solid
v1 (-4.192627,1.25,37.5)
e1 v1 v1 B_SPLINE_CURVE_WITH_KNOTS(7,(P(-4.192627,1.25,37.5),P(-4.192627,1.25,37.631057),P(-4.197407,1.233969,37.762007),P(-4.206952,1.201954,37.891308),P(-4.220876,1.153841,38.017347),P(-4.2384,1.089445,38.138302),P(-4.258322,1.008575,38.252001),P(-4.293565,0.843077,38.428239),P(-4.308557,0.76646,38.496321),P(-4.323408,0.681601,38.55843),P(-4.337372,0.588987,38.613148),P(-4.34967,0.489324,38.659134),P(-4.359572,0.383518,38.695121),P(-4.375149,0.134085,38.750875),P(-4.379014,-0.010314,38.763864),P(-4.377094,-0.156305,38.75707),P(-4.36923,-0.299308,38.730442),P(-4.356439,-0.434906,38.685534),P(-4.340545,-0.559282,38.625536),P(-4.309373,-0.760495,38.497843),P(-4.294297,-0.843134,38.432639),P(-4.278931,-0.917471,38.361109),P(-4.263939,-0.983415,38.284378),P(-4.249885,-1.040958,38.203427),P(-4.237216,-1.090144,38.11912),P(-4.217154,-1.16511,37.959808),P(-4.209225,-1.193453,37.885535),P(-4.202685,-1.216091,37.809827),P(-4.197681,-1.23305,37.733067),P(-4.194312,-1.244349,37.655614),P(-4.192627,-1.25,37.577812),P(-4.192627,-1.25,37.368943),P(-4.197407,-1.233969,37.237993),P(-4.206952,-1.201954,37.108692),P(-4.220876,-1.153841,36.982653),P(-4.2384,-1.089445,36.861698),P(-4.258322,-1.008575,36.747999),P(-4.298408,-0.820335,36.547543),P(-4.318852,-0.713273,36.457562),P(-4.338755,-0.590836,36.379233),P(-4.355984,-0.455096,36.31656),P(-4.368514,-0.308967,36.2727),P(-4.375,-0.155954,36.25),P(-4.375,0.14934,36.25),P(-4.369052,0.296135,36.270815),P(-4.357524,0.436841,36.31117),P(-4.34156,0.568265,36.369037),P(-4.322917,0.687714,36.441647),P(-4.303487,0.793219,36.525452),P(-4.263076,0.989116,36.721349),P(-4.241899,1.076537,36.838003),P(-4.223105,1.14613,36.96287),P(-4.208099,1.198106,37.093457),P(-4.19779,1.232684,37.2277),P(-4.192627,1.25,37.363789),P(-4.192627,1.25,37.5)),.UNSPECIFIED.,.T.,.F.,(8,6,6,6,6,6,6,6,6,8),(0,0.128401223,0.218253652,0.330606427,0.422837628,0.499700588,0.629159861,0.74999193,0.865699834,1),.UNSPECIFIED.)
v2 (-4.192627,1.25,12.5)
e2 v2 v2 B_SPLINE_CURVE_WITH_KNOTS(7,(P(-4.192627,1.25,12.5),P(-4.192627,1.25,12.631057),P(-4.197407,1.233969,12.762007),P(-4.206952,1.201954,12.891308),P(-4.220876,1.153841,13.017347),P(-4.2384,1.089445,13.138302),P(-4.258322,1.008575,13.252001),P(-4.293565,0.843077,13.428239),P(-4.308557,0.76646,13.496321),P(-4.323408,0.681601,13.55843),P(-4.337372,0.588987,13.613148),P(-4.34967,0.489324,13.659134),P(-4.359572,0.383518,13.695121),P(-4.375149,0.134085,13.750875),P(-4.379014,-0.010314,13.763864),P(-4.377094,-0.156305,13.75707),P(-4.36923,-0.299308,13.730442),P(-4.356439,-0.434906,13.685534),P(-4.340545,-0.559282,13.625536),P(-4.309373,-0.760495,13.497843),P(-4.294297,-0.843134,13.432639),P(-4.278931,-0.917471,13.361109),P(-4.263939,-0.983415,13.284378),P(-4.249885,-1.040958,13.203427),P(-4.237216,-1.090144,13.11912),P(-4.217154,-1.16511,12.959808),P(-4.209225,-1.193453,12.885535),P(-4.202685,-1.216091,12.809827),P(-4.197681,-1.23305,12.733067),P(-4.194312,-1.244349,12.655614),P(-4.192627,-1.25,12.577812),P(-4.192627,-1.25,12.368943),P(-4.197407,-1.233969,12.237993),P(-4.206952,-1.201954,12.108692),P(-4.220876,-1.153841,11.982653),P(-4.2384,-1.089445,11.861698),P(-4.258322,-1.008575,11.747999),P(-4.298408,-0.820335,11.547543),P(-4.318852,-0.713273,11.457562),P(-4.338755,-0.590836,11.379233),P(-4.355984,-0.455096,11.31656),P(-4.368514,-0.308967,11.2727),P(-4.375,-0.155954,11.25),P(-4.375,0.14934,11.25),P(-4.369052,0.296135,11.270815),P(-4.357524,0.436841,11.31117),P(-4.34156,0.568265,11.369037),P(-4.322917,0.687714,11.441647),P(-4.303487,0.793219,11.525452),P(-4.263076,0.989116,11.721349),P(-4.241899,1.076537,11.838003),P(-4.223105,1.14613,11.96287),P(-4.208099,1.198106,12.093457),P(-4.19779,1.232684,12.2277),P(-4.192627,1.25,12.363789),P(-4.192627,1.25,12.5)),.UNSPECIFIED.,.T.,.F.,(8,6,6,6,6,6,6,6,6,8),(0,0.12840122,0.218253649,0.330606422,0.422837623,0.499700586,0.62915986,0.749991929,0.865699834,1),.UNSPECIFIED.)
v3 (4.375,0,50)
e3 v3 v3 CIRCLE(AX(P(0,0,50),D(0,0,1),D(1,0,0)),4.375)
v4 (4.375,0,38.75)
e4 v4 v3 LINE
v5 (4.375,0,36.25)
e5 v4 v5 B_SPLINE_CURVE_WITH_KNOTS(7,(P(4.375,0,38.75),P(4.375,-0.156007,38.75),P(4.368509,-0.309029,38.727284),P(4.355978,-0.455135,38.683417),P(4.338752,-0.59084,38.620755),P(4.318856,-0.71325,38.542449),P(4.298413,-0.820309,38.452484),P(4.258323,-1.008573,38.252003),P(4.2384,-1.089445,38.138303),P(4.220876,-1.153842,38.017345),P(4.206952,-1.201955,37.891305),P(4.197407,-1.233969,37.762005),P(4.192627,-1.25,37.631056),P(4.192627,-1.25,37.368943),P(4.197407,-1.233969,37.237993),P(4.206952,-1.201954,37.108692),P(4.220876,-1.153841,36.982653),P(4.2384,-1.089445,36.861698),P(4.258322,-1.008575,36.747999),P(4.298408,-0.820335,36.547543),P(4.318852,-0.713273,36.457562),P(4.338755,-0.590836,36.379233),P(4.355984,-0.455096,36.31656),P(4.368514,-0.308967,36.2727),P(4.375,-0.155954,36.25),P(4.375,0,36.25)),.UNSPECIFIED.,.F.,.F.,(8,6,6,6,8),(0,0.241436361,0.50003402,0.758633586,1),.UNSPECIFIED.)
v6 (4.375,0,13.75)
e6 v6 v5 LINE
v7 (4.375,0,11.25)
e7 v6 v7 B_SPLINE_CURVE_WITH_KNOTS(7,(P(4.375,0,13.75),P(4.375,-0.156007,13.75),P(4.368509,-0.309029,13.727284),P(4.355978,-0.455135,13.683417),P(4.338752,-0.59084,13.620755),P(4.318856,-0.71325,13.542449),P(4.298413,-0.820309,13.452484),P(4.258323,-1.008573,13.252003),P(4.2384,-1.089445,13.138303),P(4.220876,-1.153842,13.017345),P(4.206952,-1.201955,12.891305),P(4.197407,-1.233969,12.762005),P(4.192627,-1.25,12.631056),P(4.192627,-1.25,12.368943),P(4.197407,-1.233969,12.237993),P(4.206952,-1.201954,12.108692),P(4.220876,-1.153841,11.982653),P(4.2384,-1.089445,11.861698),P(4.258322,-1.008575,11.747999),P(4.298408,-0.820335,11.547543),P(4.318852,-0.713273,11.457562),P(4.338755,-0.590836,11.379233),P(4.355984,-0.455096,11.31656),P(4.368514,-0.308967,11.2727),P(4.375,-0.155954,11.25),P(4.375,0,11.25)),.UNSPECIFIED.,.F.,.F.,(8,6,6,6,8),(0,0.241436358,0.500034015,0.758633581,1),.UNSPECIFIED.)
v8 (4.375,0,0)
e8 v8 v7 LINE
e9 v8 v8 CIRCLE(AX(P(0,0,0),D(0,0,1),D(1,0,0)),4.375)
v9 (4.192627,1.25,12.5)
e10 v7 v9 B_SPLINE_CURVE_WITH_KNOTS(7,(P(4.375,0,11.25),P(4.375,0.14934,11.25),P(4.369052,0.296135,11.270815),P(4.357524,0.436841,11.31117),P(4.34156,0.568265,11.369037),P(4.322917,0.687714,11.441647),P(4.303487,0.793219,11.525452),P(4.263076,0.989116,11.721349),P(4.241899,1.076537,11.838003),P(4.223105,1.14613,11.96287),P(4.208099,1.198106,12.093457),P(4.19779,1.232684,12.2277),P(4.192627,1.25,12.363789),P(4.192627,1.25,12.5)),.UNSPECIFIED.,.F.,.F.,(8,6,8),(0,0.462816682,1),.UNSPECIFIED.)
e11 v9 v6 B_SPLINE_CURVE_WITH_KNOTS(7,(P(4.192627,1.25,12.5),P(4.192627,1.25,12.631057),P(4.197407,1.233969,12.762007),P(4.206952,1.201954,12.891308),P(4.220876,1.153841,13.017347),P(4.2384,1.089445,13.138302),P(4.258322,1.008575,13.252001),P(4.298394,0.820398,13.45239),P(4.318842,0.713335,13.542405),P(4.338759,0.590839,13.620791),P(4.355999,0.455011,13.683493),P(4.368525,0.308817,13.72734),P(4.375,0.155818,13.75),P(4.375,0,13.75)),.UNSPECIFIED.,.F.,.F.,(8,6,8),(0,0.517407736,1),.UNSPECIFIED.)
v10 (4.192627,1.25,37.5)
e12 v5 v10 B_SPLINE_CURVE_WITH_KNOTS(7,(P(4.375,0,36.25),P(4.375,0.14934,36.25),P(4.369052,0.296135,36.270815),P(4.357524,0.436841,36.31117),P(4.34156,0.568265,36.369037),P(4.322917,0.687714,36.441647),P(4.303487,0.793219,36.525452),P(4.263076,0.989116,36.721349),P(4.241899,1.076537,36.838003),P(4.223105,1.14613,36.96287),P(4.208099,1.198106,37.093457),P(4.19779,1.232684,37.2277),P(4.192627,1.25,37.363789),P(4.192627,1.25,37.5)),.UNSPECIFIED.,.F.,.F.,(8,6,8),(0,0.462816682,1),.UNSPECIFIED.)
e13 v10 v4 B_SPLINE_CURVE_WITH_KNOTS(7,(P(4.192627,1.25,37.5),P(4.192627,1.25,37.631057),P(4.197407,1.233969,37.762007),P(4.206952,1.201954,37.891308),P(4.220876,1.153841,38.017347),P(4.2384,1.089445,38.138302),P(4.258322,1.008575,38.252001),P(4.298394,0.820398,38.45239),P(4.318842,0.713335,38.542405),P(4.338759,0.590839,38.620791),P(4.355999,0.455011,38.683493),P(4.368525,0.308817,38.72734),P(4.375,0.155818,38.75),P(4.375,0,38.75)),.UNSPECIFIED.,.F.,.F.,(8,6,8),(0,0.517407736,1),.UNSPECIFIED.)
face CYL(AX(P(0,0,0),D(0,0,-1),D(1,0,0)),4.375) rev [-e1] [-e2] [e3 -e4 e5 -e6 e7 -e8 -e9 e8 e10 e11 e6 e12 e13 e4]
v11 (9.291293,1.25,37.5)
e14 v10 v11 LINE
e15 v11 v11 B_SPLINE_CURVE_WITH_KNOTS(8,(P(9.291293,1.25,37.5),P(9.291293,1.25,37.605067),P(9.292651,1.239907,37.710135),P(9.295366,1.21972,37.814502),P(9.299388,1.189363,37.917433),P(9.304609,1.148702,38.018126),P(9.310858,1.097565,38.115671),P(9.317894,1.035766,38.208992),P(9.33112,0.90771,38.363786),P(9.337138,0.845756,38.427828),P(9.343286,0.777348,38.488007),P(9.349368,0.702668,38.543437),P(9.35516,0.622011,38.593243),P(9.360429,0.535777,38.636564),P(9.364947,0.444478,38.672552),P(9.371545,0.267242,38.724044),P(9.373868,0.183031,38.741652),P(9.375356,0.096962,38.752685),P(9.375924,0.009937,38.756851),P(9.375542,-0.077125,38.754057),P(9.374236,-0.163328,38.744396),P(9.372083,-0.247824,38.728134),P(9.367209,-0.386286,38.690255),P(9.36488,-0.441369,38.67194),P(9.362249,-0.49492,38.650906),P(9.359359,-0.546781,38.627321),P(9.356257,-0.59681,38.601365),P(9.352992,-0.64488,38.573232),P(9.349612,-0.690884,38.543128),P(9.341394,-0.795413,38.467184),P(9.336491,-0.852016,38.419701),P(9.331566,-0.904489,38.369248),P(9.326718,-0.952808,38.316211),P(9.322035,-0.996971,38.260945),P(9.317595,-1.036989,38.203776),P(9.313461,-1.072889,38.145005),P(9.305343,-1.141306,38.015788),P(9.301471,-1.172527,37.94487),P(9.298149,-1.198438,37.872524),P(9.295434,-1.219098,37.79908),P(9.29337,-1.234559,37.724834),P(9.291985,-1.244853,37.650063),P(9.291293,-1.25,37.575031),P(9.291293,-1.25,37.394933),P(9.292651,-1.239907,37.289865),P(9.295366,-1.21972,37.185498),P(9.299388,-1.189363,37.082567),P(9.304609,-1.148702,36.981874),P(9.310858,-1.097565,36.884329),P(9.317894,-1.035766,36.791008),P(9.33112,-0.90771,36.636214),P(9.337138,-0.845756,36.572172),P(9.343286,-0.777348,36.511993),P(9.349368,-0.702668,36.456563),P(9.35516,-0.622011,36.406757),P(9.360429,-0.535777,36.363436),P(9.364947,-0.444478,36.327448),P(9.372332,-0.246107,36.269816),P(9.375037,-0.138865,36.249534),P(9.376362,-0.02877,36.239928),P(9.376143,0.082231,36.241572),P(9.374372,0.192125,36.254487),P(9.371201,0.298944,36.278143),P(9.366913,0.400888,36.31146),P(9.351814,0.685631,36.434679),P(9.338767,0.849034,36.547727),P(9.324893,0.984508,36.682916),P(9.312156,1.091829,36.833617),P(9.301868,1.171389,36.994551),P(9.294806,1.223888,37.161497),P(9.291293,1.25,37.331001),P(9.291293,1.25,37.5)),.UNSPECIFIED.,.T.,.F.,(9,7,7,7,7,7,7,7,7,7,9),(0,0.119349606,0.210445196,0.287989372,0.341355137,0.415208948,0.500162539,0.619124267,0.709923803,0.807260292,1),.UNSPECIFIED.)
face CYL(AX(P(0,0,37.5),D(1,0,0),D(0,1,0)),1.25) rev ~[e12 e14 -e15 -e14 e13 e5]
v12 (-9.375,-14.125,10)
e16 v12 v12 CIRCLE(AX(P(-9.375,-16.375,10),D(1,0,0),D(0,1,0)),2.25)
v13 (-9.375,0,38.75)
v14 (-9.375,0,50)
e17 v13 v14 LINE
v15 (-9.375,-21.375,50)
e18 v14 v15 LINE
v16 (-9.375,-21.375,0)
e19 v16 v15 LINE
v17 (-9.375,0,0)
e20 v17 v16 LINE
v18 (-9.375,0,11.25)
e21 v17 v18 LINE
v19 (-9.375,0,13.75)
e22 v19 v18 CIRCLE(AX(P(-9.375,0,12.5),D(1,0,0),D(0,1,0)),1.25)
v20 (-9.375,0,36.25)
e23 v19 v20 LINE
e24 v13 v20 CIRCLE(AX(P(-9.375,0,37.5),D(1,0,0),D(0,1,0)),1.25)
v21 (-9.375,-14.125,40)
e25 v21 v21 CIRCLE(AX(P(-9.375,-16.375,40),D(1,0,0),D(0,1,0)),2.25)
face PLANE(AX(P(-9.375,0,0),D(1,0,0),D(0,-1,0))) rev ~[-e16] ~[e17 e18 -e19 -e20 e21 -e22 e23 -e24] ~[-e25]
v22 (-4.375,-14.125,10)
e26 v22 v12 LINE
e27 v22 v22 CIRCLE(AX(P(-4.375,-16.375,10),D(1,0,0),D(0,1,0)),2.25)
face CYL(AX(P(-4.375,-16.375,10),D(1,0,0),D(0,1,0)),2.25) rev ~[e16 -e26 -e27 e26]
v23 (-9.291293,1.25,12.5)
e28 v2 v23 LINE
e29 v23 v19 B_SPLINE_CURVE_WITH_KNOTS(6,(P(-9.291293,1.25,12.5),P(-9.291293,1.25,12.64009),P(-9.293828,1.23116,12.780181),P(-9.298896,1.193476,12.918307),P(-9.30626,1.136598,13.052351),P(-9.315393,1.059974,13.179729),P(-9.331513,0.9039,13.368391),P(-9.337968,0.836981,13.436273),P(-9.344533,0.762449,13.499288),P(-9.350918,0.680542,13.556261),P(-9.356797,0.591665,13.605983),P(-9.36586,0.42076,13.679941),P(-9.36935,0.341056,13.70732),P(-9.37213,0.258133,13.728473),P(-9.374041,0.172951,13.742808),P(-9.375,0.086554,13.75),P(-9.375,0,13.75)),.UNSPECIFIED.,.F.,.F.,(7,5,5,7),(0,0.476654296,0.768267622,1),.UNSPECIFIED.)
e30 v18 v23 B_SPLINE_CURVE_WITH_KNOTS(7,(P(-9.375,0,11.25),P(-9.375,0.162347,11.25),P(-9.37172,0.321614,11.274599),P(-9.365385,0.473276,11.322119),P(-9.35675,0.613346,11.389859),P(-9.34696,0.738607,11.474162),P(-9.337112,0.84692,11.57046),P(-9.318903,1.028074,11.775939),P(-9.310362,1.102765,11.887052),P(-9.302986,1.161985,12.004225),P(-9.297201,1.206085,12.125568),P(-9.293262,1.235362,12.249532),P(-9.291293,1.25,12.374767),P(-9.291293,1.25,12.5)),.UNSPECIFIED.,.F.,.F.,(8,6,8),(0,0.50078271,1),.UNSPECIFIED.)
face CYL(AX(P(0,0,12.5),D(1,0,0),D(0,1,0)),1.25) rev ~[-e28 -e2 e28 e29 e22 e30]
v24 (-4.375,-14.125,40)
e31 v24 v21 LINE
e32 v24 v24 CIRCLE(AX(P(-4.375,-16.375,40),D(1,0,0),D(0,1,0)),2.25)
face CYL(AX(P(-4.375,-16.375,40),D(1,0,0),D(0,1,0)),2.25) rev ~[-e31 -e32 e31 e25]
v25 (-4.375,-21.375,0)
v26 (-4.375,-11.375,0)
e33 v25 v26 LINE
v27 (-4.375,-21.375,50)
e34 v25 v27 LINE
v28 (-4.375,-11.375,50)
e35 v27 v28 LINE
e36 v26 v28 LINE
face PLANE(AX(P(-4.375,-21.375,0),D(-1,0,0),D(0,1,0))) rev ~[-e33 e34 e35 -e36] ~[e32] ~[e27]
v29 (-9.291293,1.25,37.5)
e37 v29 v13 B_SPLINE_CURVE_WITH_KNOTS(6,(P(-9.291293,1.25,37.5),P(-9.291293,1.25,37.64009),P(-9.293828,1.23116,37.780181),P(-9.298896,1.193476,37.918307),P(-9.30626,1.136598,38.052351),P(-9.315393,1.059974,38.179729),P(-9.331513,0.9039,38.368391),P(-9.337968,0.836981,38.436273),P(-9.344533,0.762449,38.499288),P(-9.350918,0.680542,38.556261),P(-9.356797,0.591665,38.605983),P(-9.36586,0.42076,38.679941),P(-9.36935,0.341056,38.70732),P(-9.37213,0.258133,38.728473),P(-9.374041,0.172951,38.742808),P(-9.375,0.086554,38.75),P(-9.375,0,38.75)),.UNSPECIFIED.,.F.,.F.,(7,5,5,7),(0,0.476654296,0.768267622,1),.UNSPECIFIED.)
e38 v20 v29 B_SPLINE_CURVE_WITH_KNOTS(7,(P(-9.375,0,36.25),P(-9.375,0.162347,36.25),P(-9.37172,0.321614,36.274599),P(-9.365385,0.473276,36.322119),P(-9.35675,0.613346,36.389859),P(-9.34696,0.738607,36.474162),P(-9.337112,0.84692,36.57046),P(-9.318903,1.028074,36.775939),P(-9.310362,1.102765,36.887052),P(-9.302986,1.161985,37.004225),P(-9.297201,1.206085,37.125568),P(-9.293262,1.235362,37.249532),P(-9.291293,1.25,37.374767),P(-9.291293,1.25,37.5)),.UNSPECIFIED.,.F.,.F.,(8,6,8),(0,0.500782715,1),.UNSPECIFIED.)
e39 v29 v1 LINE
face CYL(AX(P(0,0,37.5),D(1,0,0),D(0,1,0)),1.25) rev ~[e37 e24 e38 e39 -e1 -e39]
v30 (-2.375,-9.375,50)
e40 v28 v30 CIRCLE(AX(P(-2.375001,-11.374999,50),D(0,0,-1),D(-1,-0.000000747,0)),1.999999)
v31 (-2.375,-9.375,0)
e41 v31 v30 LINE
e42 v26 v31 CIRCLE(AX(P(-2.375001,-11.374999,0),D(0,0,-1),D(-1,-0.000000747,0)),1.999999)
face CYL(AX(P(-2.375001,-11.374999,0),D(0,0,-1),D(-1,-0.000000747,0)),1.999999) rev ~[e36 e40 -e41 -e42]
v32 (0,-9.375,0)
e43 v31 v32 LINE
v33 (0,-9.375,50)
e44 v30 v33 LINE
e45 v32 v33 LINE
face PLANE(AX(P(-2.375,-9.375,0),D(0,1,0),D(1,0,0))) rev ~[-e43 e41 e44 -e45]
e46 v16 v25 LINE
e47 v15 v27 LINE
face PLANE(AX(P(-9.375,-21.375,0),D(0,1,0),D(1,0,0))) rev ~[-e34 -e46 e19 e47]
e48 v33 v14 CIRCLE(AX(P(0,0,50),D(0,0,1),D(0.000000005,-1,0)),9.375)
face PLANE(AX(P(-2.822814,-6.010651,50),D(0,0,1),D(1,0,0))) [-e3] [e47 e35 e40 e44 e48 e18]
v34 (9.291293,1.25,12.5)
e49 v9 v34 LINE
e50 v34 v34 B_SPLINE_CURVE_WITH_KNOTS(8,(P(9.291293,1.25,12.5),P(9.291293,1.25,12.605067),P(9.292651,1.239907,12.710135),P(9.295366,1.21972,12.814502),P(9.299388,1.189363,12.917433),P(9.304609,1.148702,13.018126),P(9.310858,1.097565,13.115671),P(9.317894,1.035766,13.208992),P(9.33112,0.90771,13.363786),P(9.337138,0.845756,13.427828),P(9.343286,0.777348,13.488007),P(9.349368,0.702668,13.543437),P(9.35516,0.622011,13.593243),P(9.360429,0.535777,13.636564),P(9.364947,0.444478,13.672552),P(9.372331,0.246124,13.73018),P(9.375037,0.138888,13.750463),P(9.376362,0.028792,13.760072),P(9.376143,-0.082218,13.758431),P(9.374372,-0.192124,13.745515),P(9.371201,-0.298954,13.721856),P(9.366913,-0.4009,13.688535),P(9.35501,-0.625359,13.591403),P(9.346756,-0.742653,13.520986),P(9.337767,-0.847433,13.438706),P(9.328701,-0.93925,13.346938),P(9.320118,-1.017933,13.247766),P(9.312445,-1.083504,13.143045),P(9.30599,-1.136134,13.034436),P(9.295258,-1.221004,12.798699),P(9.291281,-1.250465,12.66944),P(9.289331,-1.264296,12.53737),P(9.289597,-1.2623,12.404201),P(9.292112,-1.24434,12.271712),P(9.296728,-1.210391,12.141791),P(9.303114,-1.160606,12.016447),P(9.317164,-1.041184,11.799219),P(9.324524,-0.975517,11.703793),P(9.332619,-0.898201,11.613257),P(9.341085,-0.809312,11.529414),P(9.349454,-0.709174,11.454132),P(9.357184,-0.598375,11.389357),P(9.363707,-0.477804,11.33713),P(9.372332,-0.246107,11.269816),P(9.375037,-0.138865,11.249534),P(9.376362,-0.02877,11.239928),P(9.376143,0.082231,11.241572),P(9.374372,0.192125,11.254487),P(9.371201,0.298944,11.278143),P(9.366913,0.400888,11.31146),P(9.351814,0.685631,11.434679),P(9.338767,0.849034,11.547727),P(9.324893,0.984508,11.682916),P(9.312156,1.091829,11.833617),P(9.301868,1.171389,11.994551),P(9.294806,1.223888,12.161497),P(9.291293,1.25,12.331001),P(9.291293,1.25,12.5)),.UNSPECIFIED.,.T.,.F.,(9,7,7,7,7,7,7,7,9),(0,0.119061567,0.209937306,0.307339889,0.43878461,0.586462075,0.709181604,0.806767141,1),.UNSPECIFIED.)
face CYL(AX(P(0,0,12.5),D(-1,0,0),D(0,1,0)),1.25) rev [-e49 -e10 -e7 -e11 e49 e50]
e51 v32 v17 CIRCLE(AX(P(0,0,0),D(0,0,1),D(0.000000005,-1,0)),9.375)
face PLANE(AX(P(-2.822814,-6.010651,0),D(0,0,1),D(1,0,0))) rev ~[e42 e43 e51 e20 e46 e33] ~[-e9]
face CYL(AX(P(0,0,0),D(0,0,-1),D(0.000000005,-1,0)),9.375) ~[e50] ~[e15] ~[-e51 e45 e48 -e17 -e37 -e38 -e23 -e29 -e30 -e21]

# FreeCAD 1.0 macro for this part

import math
import FreeCAD as App
import Part
import Sketcher
from FreeCAD import Vector

doc = App.newDocument("Part")
params = doc.addObject("Spreadsheet::Sheet", "Params")
for row, (alias, value) in enumerate([
    ("sketch1_radius", "1.999999 mm"),
    ("sketch1_diameter", "8.75 mm"),
    ("sketch1_width", "5 mm"),
    ("sketch1_height", "10 mm"),
    ("pad1_length", "50 mm"),
    ("sketch2_diameter", "2.5 mm"),
    ("pocket1_length", "25 mm"),
    ("sketch3_diameter", "4.5 mm"),
], start=1):
    params.set(f"A{row}", alias)
    params.set(f"B{row}", "=" + value)
    params.setAlias(f"B{row}", alias)

body = doc.addObject("PartDesign::Body", "Body")

# Sketch on XY plane
sketch1 = body.newObject("Sketcher::SketchObject", "Sketch")
sketch1.AttachmentSupport = (doc.getObject("XY_Plane"), [""])
sketch1.MapMode = "FlatFace"
sketch1.addGeometry(Part.LineSegment(Vector(-2.4, -9.4, 0), Vector(0, -9.4, 0)), False)
sketch1.addGeometry(Part.ArcOfCircle(Part.Circle(Vector(0, 0, 0), Vector(0, 0, 1), 9.4), math.radians(-90), math.radians(180)), False)
sketch1.addGeometry(Part.LineSegment(Vector(-9.4, 0, 0), Vector(-9.4, -21.4, 0)), False)
sketch1.addGeometry(Part.LineSegment(Vector(-9.4, -21.4, 0), Vector(-4.4, -21.4, 0)), False)
sketch1.addGeometry(Part.LineSegment(Vector(-4.4, -21.4, 0), Vector(-4.4, -11.4, 0)), False)
sketch1.addGeometry(Part.ArcOfCircle(Part.Circle(Vector(-2.4, -11.4, 0), Vector(0, 0, 1), 2), math.radians(90), math.radians(180)), False)
sketch1.addGeometry(Part.Circle(Vector(0, 0, 0), Vector(0, 0, 1), 4.4), False)
sketch1.addConstraint(Sketcher.Constraint("Tangent", 0, 2, 1, 1))
sketch1.addConstraint(Sketcher.Constraint("Tangent", 1, 2, 2, 1))
sketch1.addConstraint(Sketcher.Constraint("Coincident", 2, 2, 3, 1))
sketch1.addConstraint(Sketcher.Constraint("Coincident", 3, 2, 4, 1))
sketch1.addConstraint(Sketcher.Constraint("Tangent", 4, 2, 5, 2))
sketch1.addConstraint(Sketcher.Constraint("Tangent", 5, 1, 0, 1))
sketch1.addConstraint(Sketcher.Constraint("Horizontal", 0))
sketch1.addConstraint(Sketcher.Constraint("Vertical", 2))
sketch1.addConstraint(Sketcher.Constraint("Horizontal", 3))
sketch1.addConstraint(Sketcher.Constraint("Vertical", 4))
sketch1.addConstraint(Sketcher.Constraint("Coincident", 1, 3, -1, 1))
sketch1.addConstraint(Sketcher.Constraint("Coincident", 6, 3, -1, 1))
sketch1.addConstraint(Sketcher.Constraint("Radius", 5, 1.999999))
sketch1.addConstraint(Sketcher.Constraint("Diameter", 6, 8.75))
sketch1.addConstraint(Sketcher.Constraint("DistanceX", 3, 1, 3, 2, 5.0))
sketch1.addConstraint(Sketcher.Constraint("DistanceY", 4, 1, 4, 2, 10.0))
sketch1.addConstraint(Sketcher.Constraint("Radius", 1, 9.375))
sketch1.setExpression("Constraints[12]", "Params.sketch1_radius")
sketch1.setExpression("Constraints[13]", "Params.sketch1_diameter")
sketch1.setExpression("Constraints[14]", "Params.sketch1_width")
sketch1.setExpression("Constraints[15]", "Params.sketch1_height")
pad1 = body.newObject("PartDesign::Pad", "Pad")
pad1.Profile = sketch1
pad1.setExpression("Length", "Params.pad1_length")

# Sketch on YZ plane
sketch2 = body.newObject("Sketcher::SketchObject", "Sketch001")
sketch2.AttachmentSupport = (doc.getObject("YZ_Plane"), [""])
sketch2.MapMode = "FlatFace"
sketch2.addGeometry(Part.Circle(Vector(0, 12.5, 0), Vector(0, 0, 1), 1.2), False)
sketch2.addGeometry(Part.Circle(Vector(0, 37.5, 0), Vector(0, 0, 1), 1.2), False)
sketch2.addConstraint(Sketcher.Constraint("Equal", 0, 1))
sketch2.addConstraint(Sketcher.Constraint("PointOnObject", 0, 3, -2))
sketch2.addConstraint(Sketcher.Constraint("PointOnObject", 1, 3, -2))
sketch2.addConstraint(Sketcher.Constraint("Diameter", 0, 2.5))
sketch2.addConstraint(Sketcher.Constraint("DistanceY", 0, 3, 1, 3, 25.0))
sketch2.addConstraint(Sketcher.Constraint("DistanceY", -1, 1, 0, 3, 12.5))
sketch2.setExpression("Constraints[3]", "Params.sketch2_diameter")
pocket1 = body.newObject("PartDesign::Pocket", "Pocket")
pocket1.Profile = sketch2
pocket1.setExpression("Length", "Params.pocket1_length")
pocket1.Midplane = True

# Sketch on YZ plane
sketch3 = body.newObject("Sketcher::SketchObject", "Sketch002")
sketch3.AttachmentSupport = (doc.getObject("YZ_Plane"), [""])
sketch3.MapMode = "FlatFace"
sketch3.AttachmentOffset = App.Placement(Vector(0, 0, -4.375), App.Rotation())
sketch3.addGeometry(Part.Circle(Vector(-16.4, 40, 0), Vector(0, 0, 1), 2.2), False)
sketch3.addGeometry(Part.Circle(Vector(-16.4, 10, 0), Vector(0, 0, 1), 2.2), False)
sketch3.addConstraint(Sketcher.Constraint("Equal", 0, 1))
sketch3.addConstraint(Sketcher.Constraint("Vertical", 0, 3, 1, 3))
sketch3.addConstraint(Sketcher.Constraint("Diameter", 0, 4.5))
sketch3.addConstraint(Sketcher.Constraint("DistanceY", -1, 1, 0, 3, 40.0))
sketch3.addConstraint(Sketcher.Constraint("DistanceY", -1, 1, 1, 3, 10.0))
sketch3.addConstraint(Sketcher.Constraint("DistanceX", 0, 3, -1, 1, 16.375))
sketch3.setExpression("Constraints[2]", "Params.sketch3_diameter")
pocket2 = body.newObject("PartDesign::Pocket", "Pocket001")
pocket2.Profile = sketch3
pocket2.Type = "ThroughAll"

doc.recompute()
